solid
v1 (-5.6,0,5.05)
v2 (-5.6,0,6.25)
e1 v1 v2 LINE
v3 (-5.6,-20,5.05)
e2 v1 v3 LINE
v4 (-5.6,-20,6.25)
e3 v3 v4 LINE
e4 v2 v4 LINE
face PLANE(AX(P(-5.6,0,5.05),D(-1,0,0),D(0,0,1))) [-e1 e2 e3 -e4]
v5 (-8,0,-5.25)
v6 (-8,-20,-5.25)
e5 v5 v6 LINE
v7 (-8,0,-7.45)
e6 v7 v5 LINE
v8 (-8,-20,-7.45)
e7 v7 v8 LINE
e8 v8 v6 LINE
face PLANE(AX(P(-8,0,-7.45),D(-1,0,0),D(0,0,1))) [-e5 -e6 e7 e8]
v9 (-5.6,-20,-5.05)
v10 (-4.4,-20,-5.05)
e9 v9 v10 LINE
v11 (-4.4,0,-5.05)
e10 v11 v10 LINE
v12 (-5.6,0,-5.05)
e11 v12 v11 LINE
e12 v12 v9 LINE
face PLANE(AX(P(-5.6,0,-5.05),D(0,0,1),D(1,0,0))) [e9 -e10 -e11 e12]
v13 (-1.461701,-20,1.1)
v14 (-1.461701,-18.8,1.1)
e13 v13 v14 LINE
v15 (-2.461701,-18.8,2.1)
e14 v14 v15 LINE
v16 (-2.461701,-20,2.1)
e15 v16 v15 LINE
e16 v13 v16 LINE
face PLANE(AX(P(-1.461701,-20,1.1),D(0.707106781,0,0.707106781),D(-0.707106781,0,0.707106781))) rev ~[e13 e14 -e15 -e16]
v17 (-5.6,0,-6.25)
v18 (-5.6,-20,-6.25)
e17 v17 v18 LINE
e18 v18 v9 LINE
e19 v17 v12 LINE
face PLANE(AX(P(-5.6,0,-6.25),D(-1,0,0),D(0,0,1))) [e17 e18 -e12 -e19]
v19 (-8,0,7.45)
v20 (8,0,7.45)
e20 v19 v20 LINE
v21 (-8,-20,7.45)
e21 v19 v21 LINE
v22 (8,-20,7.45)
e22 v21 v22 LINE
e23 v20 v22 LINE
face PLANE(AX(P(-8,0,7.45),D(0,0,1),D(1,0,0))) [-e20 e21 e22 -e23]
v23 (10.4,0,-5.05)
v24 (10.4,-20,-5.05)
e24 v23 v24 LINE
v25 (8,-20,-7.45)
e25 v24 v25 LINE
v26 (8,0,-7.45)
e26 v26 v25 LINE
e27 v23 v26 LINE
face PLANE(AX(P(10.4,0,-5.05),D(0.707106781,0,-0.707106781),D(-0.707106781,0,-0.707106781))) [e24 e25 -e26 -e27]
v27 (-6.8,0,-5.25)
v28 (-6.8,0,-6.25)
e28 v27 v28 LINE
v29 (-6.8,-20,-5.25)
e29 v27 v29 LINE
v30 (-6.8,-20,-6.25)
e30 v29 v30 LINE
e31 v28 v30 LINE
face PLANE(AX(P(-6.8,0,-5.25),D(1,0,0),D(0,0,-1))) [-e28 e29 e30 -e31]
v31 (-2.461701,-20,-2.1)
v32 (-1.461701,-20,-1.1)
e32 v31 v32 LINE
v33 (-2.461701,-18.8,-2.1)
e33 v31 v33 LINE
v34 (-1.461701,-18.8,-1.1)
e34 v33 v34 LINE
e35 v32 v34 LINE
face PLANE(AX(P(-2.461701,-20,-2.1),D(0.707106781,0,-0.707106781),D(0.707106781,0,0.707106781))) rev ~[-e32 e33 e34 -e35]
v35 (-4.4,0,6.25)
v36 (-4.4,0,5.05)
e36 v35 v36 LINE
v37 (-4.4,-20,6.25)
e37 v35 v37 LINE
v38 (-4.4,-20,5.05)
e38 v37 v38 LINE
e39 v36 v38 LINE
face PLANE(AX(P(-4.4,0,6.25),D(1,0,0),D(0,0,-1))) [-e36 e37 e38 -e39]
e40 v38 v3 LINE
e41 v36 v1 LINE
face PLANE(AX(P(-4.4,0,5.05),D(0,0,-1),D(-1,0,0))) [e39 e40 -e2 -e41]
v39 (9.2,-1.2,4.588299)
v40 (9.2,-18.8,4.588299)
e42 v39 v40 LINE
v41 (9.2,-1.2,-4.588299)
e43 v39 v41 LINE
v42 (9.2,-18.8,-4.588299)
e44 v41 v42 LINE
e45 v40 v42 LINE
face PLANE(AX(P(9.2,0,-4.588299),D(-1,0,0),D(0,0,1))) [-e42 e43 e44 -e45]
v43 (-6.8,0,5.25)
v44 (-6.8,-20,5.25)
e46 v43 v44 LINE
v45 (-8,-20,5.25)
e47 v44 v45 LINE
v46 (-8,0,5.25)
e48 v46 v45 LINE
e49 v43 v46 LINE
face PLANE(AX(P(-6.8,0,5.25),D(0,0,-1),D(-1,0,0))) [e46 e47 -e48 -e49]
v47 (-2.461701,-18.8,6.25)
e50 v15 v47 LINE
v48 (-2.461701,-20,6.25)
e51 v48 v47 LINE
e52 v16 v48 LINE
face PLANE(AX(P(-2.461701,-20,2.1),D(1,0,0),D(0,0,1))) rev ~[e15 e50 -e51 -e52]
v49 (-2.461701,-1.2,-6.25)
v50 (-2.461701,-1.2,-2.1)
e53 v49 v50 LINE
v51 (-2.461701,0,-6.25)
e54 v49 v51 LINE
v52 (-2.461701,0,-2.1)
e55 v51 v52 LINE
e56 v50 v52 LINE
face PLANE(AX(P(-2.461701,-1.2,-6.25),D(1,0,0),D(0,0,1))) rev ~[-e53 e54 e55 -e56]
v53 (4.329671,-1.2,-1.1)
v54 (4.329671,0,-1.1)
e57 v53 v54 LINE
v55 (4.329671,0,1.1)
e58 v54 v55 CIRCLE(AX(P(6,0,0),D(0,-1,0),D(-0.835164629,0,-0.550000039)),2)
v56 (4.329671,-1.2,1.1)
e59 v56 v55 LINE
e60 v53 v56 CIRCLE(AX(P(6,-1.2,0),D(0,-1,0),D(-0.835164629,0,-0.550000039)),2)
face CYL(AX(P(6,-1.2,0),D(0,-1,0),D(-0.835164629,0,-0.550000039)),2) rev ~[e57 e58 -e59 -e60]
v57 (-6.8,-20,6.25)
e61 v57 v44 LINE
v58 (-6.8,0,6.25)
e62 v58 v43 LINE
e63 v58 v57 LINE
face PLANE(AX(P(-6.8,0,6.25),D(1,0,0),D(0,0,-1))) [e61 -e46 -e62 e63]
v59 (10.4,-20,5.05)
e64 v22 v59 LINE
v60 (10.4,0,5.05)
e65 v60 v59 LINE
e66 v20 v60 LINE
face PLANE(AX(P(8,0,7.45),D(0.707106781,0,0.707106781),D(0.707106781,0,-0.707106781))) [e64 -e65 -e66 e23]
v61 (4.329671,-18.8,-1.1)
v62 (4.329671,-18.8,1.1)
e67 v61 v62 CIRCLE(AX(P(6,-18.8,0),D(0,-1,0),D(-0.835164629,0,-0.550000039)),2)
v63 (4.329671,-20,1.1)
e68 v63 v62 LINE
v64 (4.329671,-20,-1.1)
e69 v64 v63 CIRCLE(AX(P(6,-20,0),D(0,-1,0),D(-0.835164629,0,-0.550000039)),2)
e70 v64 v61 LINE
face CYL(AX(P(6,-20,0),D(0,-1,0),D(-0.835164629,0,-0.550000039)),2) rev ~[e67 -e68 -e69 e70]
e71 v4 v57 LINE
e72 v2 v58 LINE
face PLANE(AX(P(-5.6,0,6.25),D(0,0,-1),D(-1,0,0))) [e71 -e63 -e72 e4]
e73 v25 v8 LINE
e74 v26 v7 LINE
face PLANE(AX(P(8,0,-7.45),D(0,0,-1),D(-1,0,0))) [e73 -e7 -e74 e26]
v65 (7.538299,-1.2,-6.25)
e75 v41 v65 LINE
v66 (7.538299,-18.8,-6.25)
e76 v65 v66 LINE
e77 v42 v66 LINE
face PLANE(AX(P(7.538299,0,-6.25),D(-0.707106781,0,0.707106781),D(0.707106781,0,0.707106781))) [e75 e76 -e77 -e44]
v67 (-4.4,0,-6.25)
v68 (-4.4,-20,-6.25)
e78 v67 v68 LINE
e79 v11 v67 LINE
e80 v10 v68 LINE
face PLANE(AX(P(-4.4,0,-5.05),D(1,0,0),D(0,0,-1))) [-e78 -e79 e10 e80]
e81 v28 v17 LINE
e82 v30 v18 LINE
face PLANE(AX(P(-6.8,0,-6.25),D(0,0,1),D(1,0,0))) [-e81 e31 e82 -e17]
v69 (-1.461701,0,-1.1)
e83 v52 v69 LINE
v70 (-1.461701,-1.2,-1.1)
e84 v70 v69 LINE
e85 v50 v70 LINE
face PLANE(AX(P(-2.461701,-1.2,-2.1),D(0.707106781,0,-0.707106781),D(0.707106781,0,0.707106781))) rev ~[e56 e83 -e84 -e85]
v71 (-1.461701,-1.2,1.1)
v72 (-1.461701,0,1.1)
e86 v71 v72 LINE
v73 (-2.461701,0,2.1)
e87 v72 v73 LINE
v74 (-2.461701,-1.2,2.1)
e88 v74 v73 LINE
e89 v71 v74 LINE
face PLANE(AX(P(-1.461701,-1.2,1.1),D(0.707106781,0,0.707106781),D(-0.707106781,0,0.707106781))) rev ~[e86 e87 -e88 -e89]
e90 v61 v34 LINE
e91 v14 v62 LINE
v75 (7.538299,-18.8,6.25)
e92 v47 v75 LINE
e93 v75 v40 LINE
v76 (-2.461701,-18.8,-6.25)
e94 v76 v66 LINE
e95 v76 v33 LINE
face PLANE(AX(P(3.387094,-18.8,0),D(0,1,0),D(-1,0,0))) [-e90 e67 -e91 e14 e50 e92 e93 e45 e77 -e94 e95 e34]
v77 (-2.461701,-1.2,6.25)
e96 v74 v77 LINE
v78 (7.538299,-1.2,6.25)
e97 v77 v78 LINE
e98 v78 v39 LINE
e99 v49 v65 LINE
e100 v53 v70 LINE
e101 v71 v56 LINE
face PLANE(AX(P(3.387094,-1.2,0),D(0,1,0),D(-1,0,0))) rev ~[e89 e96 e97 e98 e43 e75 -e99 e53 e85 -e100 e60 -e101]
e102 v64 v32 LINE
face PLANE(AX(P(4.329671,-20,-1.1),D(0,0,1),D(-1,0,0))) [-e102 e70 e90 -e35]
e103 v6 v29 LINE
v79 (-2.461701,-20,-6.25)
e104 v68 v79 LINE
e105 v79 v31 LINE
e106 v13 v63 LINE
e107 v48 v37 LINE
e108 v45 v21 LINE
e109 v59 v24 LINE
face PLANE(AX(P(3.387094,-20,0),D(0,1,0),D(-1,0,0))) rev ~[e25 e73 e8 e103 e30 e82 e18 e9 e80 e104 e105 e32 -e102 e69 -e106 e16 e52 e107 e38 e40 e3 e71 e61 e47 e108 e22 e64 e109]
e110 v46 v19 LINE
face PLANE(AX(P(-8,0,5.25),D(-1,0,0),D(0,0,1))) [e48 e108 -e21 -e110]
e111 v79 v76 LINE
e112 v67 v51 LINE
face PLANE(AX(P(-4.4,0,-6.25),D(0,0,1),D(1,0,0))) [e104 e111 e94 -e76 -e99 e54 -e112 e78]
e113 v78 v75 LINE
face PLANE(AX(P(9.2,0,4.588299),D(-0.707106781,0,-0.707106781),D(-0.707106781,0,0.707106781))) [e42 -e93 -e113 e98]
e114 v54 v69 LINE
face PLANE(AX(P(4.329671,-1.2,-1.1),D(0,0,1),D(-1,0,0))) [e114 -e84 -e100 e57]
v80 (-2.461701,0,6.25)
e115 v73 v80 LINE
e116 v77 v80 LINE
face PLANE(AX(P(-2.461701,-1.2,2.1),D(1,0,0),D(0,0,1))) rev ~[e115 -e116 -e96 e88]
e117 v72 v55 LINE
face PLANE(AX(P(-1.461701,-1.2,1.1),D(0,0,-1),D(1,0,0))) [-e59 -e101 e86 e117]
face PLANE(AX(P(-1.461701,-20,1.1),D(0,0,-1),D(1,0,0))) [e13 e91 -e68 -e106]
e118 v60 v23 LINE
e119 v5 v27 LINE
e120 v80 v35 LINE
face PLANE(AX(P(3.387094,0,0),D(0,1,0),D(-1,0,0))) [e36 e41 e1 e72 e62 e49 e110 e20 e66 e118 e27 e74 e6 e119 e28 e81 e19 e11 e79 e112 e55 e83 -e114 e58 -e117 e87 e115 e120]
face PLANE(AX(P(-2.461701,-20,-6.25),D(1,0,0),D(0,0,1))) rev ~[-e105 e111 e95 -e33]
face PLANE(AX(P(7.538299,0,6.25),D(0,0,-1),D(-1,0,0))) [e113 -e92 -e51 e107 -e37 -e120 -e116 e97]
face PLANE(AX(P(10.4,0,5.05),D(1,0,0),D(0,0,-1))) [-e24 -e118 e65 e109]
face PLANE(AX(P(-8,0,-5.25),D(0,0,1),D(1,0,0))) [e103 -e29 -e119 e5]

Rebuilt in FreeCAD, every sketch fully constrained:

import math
import FreeCAD as App
import Part
import Sketcher

V = App.Vector
Q = App.Units.Quantity

doc = App.newDocument("Part")
body = doc.addObject("PartDesign::Body", "Body")

# Sketch on XZ plane
sketch1 = body.newObject("Sketcher::SketchObject", "Sketch")
sketch1.AttachmentSupport = (doc.getObject("XZ_Plane"), [""])
sketch1.MapMode = "FlatFace"
sketch1.addGeometry(Part.LineSegment(V(8, 7.5, 0), V(-8, 7.5, 0)), False)
sketch1.addGeometry(Part.LineSegment(V(-8, 7.5, 0), V(-8, 5.2, 0)), False)
sketch1.addGeometry(Part.LineSegment(V(-8, 5.2, 0), V(-6.8, 5.2, 0)), False)
sketch1.addGeometry(Part.LineSegment(V(-6.8, 5.2, 0), V(-6.8, 6.2, 0)), False)
sketch1.addGeometry(Part.LineSegment(V(-6.8, 6.2, 0), V(-5.6, 6.2, 0)), False)
sketch1.addGeometry(Part.LineSegment(V(-5.6, 6.2, 0), V(-5.6, 5, 0)), False)
sketch1.addGeometry(Part.LineSegment(V(-5.6, 5, 0), V(-4.4, 5, 0)), False)
sketch1.addGeometry(Part.LineSegment(V(-4.4, 5, 0), V(-4.4, 6.2, 0)), False)
sketch1.addGeometry(Part.LineSegment(V(-4.4, 6.2, 0), V(7.5, 6.2, 0)), False)
sketch1.addGeometry(Part.LineSegment(V(7.5, 6.2, 0), V(9.2, 4.6, 0)), False)
sketch1.addGeometry(Part.LineSegment(V(9.2, 4.6, 0), V(9.2, -4.6, 0)), False)
sketch1.addGeometry(Part.LineSegment(V(9.2, -4.6, 0), V(7.5, -6.2, 0)), False)
sketch1.addGeometry(Part.LineSegment(V(7.5, -6.2, 0), V(-4.4, -6.2, 0)), False)
sketch1.addGeometry(Part.LineSegment(V(-4.4, -6.2, 0), V(-4.4, -5, 0)), False)
sketch1.addGeometry(Part.LineSegment(V(-4.4, -5, 0), V(-5.6, -5, 0)), False)
sketch1.addGeometry(Part.LineSegment(V(-5.6, -5, 0), V(-5.6, -6.2, 0)), False)
sketch1.addGeometry(Part.LineSegment(V(-5.6, -6.2, 0), V(-6.8, -6.2, 0)), False)
sketch1.addGeometry(Part.LineSegment(V(-6.8, -6.2, 0), V(-6.8, -5.2, 0)), False)
sketch1.addGeometry(Part.LineSegment(V(-6.8, -5.2, 0), V(-8, -5.2, 0)), False)
sketch1.addGeometry(Part.LineSegment(V(-8, -5.2, 0), V(-8, -7.5, 0)), False)
sketch1.addGeometry(Part.LineSegment(V(-8, -7.5, 0), V(8, -7.5, 0)), False)
sketch1.addGeometry(Part.LineSegment(V(8, -7.5, 0), V(10.4, -5, 0)), False)
sketch1.addGeometry(Part.LineSegment(V(10.4, -5, 0), V(10.4, 5, 0)), False)
sketch1.addGeometry(Part.LineSegment(V(10.4, 5, 0), V(8, 7.5, 0)), False)
sketch1.addConstraint(Sketcher.Constraint("Coincident", 0, 2, 1, 1))
sketch1.addConstraint(Sketcher.Constraint("Coincident", 1, 2, 2, 1))
sketch1.addConstraint(Sketcher.Constraint("Coincident", 2, 2, 3, 1))
sketch1.addConstraint(Sketcher.Constraint("Coincident", 3, 2, 4, 1))
sketch1.addConstraint(Sketcher.Constraint("Coincident", 4, 2, 5, 1))
sketch1.addConstraint(Sketcher.Constraint("Coincident", 5, 2, 6, 1))
sketch1.addConstraint(Sketcher.Constraint("Coincident", 6, 2, 7, 1))
sketch1.addConstraint(Sketcher.Constraint("Coincident", 7, 2, 8, 1))
sketch1.addConstraint(Sketcher.Constraint("Coincident", 8, 2, 9, 1))
sketch1.addConstraint(Sketcher.Constraint("Coincident", 9, 2, 10, 1))
sketch1.addConstraint(Sketcher.Constraint("Coincident", 10, 2, 11, 1))
sketch1.addConstraint(Sketcher.Constraint("Coincident", 11, 2, 12, 1))
sketch1.addConstraint(Sketcher.Constraint("Coincident", 12, 2, 13, 1))
sketch1.addConstraint(Sketcher.Constraint("Coincident", 13, 2, 14, 1))
sketch1.addConstraint(Sketcher.Constraint("Coincident", 14, 2, 15, 1))
sketch1.addConstraint(Sketcher.Constraint("Coincident", 15, 2, 16, 1))
sketch1.addConstraint(Sketcher.Constraint("Coincident", 16, 2, 17, 1))
sketch1.addConstraint(Sketcher.Constraint("Coincident", 17, 2, 18, 1))
sketch1.addConstraint(Sketcher.Constraint("Coincident", 18, 2, 19, 1))
sketch1.addConstraint(Sketcher.Constraint("Coincident", 19, 2, 20, 1))
sketch1.addConstraint(Sketcher.Constraint("Coincident", 20, 2, 21, 1))
sketch1.addConstraint(Sketcher.Constraint("Coincident", 21, 2, 22, 1))
sketch1.addConstraint(Sketcher.Constraint("Coincident", 22, 2, 23, 1))
sketch1.addConstraint(Sketcher.Constraint("Coincident", 23, 2, 0, 1))
sketch1.addConstraint(Sketcher.Constraint("Horizontal", 0))
sketch1.addConstraint(Sketcher.Constraint("Vertical", 1))
sketch1.addConstraint(Sketcher.Constraint("Horizontal", 2))
sketch1.addConstraint(Sketcher.Constraint("Vertical", 3))
sketch1.addConstraint(Sketcher.Constraint("Horizontal", 4))
sketch1.addConstraint(Sketcher.Constraint("Vertical", 5))
sketch1.addConstraint(Sketcher.Constraint("Horizontal", 6))
sketch1.addConstraint(Sketcher.Constraint("Vertical", 7))
sketch1.addConstraint(Sketcher.Constraint("Horizontal", 8))
sketch1.addConstraint(Sketcher.Constraint("Vertical", 10))
sketch1.addConstraint(Sketcher.Constraint("Horizontal", 12))
sketch1.addConstraint(Sketcher.Constraint("Vertical", 13))
sketch1.addConstraint(Sketcher.Constraint("Horizontal", 14))
sketch1.addConstraint(Sketcher.Constraint("Vertical", 15))
sketch1.addConstraint(Sketcher.Constraint("Horizontal", 16))
sketch1.addConstraint(Sketcher.Constraint("Vertical", 17))
sketch1.addConstraint(Sketcher.Constraint("Horizontal", 18))
sketch1.addConstraint(Sketcher.Constraint("Vertical", 19))
sketch1.addConstraint(Sketcher.Constraint("Horizontal", 20))
sketch1.addConstraint(Sketcher.Constraint("Vertical", 22))
sketch1.addConstraint(Sketcher.Constraint("Symmetric", 0, 2, 20, 2, -1, 1))
sketch1.addConstraint(Sketcher.Constraint("Symmetric", 8, 2, 11, 2, -1))
sketch1.addConstraint(Sketcher.Constraint("Symmetric", 6, 2, 13, 2, -1))
sketch1.addConstraint(Sketcher.Constraint("Symmetric", 4, 2, 15, 2, -1))
sketch1.addConstraint(Sketcher.Constraint("Symmetric", 2, 2, 17, 2, -1))
sketch1.addConstraint(Sketcher.Constraint("Perpendicular", 9, 11))
sketch1.addConstraint(Sketcher.Constraint("Parallel", 11, 21))
sketch1.addConstraint(Sketcher.Constraint("Perpendicular", 21, 23))
sketch1.addConstraint(Sketcher.Constraint("Horizontal", 4, 2, 7, 2))
sketch1.addConstraint(Sketcher.Constraint("Horizontal", 14, 2, 21, 2))
sketch1.addConstraint(Sketcher.Constraint("Horizontal", 6, 2, 22, 2))
sketch1.addConstraint(Sketcher.Constraint("Vertical", 1, 2, 18, 2))
sketch1.addConstraint(Sketcher.Constraint("Vertical", 20, 2, 23, 2))
sketch1.addConstraint(Sketcher.Constraint("Equal", 2, 4))
sketch1.addConstraint(Sketcher.Constraint("Equal", 4, 6))
sketch1.addConstraint(Sketcher.Constraint("Equal", 18, 5))
sketch1.addConstraint(Sketcher.Constraint("DistanceX", 0, 2, 0, 1, Q("16 mm")))
sketch1.addConstraint(Sketcher.Constraint("DistanceY", 3, 1, 3, 2, Q("1 mm")))
sketch1.addConstraint(Sketcher.Constraint("DistanceX", 2, 1, 2, 2, Q("1.2 mm")))
sketch1.addConstraint(Sketcher.Constraint("DistanceY", 1, 2, 1, 1, Q("2.2 mm")))
sketch1.addConstraint(Sketcher.Constraint("DistanceY", 22, 1, 22, 2, Q("10.1 mm")))
sketch1.addConstraint(Sketcher.Constraint("DistanceX", -1, 1, 9, 2, Q("9.2 mm")))
sketch1.addConstraint(Sketcher.Constraint("Distance", 9, Q("2.35 mm")))
pad1 = body.newObject("PartDesign::Pad", "Pad")
pad1.Profile = sketch1
pad1.Length = 20

# Sketch on XZ plane
sketch2 = body.newObject("Sketcher::SketchObject", "Sketch001")
sketch2.AttachmentSupport = (doc.getObject("XZ_Plane"), [""])
sketch2.MapMode = "FlatFace"
sketch2.AttachmentOffset = App.Placement(V(0, 0, 20), App.Rotation())
sketch2.addGeometry(Part.LineSegment(V(7.5, 6.2, 0), V(-2.5, 6.2, 0)), False)
sketch2.addGeometry(Part.LineSegment(V(-2.5, 6.2, 0), V(-2.5, 2.1, 0)), False)
sketch2.addGeometry(Part.LineSegment(V(-2.5, 2.1, 0), V(-1.5, 1.1, 0)), False)
sketch2.addGeometry(Part.LineSegment(V(-1.5, 1.1, 0), V(4.3, 1.1, 0)), False)
sketch2.addGeometry(Part.ArcOfCircle(Part.Circle(V(6, 0, 0), V(0, 0, 1), 2), math.radians(-147), math.radians(147)), False)
sketch2.addGeometry(Part.LineSegment(V(4.3, -1.1, 0), V(-1.5, -1.1, 0)), False)
sketch2.addGeometry(Part.LineSegment(V(-1.5, -1.1, 0), V(-2.5, -2.1, 0)), False)
sketch2.addGeometry(Part.LineSegment(V(-2.5, -2.1, 0), V(-2.5, -6.2, 0)), False)
sketch2.addGeometry(Part.LineSegment(V(-2.5, -6.2, 0), V(7.5, -6.2, 0)), False)
sketch2.addGeometry(Part.LineSegment(V(7.5, -6.2, 0), V(9.2, -4.6, 0)), False)
sketch2.addGeometry(Part.LineSegment(V(9.2, -4.6, 0), V(9.2, 4.6, 0)), False)
sketch2.addGeometry(Part.LineSegment(V(9.2, 4.6, 0), V(7.5, 6.2, 0)), False)
sketch2.addConstraint(Sketcher.Constraint("Coincident", 0, 2, 1, 1))
sketch2.addConstraint(Sketcher.Constraint("Coincident", 1, 2, 2, 1))
sketch2.addConstraint(Sketcher.Constraint("Coincident", 2, 2, 3, 1))
sketch2.addConstraint(Sketcher.Constraint("Coincident", 3, 2, 4, 2))
sketch2.addConstraint(Sketcher.Constraint("Coincident", 4, 1, 5, 1))
sketch2.addConstraint(Sketcher.Constraint("Coincident", 5, 2, 6, 1))
sketch2.addConstraint(Sketcher.Constraint("Coincident", 6, 2, 7, 1))
sketch2.addConstraint(Sketcher.Constraint("Coincident", 7, 2, 8, 1))
sketch2.addConstraint(Sketcher.Constraint("Coincident", 8, 2, 9, 1))
sketch2.addConstraint(Sketcher.Constraint("Coincident", 9, 2, 10, 1))
sketch2.addConstraint(Sketcher.Constraint("Coincident", 10, 2, 11, 1))
sketch2.addConstraint(Sketcher.Constraint("Coincident", 11, 2, 0, 1))
sketch2.addConstraint(Sketcher.Constraint("Horizontal", 0))
sketch2.addConstraint(Sketcher.Constraint("Vertical", 1))
sketch2.addConstraint(Sketcher.Constraint("Horizontal", 3))
sketch2.addConstraint(Sketcher.Constraint("Horizontal", 5))
sketch2.addConstraint(Sketcher.Constraint("Vertical", 7))
sketch2.addConstraint(Sketcher.Constraint("Horizontal", 8))
sketch2.addConstraint(Sketcher.Constraint("Vertical", 10))
sketch2.addConstraint(Sketcher.Constraint("Symmetric", 3, 2, 4, 1, -1))
sketch2.addConstraint(Sketcher.Constraint("Symmetric", 1, 2, 6, 2, -1))
sketch2.addConstraint(Sketcher.Constraint("Symmetric", 8, 2, 11, 2, -1))
sketch2.addConstraint(Sketcher.Constraint("Perpendicular", 2, 6))
sketch2.addConstraint(Sketcher.Constraint("Parallel", 6, 9))
sketch2.addConstraint(Sketcher.Constraint("Perpendicular", 9, 11))
sketch2.addConstraint(Sketcher.Constraint("Vertical", 2, 2, 5, 2))
sketch2.addConstraint(Sketcher.Constraint("Radius", 4, Q("2 mm")))
sketch2.addConstraint(Sketcher.Constraint("DistanceX", 0, 2, 0, 1, Q("10 mm")))
sketch2.addConstraint(Sketcher.Constraint("DistanceX", -1, 1, 4, 3, Q("6 mm")))
sketch2.addConstraint(Sketcher.Constraint("DistanceX", 1, 2, 2, 2, Q("1 mm")))
sketch2.addConstraint(Sketcher.Constraint("DistanceY", 1, 2, 1, 1, Q("4.15 mm")))
sketch2.addConstraint(Sketcher.Constraint("DistanceY", -1, 1, 1, 2, Q("2.1 mm")))
sketch2.addConstraint(Sketcher.Constraint("DistanceX", -1, 1, 9, 2, Q("9.2 mm")))
sketch2.addConstraint(Sketcher.Constraint("Distance", 9, Q("2.35 mm")))
pad2 = body.newObject("PartDesign::Pad", "Pad001")
pad2.Profile = sketch2
pad2.Length = 1.2
pad2.Reversed = True
doc.recompute()

linearpattern = body.newObject("PartDesign::LinearPattern", "LinearPattern")
linearpattern.Originals = [pad2]
linearpattern.Direction = (doc.getObject("Y_Axis"), [""])
linearpattern.Mode = "offset"
linearpattern.Offset = 18.8
linearpattern.Occurrences = 2
body.Tip = linearpattern

doc.recompute()
